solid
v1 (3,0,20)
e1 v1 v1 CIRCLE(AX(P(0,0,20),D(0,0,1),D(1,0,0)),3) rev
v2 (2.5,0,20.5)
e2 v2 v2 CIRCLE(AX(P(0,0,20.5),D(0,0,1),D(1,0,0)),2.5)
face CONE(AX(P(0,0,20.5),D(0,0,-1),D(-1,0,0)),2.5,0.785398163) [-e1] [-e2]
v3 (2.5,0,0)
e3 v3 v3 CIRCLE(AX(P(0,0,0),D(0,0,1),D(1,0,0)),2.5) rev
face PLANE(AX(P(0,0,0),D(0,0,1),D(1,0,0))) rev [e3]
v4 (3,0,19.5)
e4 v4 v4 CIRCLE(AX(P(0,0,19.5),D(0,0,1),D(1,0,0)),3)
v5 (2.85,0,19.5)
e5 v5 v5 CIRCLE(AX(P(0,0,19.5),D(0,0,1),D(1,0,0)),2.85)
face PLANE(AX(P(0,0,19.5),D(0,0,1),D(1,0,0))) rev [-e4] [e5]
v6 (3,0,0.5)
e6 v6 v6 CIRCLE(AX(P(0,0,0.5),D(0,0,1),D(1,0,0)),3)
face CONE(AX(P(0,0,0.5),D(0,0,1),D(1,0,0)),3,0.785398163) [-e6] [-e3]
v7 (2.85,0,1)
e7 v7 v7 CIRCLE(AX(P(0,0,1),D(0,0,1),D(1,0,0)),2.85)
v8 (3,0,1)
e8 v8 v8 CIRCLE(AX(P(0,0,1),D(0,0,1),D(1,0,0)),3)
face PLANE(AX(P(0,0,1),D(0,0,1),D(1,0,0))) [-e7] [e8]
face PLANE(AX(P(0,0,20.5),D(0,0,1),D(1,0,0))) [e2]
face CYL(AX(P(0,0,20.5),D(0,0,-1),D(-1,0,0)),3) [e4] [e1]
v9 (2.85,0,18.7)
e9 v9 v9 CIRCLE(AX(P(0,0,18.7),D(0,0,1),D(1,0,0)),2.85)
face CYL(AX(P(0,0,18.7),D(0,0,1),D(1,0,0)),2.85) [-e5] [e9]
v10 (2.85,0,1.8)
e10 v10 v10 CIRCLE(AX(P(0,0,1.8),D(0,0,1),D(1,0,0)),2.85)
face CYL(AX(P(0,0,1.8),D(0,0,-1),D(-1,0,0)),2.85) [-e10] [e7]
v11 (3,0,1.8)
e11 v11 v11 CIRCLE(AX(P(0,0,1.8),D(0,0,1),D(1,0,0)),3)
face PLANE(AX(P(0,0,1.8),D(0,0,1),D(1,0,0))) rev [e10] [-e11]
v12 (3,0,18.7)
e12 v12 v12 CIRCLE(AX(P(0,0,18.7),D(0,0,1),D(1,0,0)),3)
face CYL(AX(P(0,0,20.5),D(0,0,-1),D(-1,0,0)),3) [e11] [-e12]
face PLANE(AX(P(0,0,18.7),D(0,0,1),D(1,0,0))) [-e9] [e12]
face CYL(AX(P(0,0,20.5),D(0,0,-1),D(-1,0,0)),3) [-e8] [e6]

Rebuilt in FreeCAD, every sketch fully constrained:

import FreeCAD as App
import Part
import Sketcher

V = App.Vector


def edges_at(feature, points):
    """Names of the edges that pass closest to the given points."""
    edges = feature.Shape.Edges
    near = lambda p: min(range(len(edges)), key=lambda i: edges[i].distToShape(Part.Vertex(*p))[0])
    return sorted({f"Edge{near(p) + 1}" for p in points})

doc = App.newDocument("Part")
body = doc.addObject("PartDesign::Body", "Body")

sketch1 = doc.addObject("Sketcher::SketchObject", "Sketch")
body.addObject(sketch1)
sketch1.AttachmentSupport = (doc.XY_Plane, [""])
sketch1.MapMode = "FlatFace"
sketch1.addGeometry(Part.Circle(V(0, 0, 0), V(0, 0, 1), 3), False)
sketch1.addConstraint(Sketcher.Constraint("Coincident", 0, 3, -1, 1))
sketch1.addConstraint(Sketcher.Constraint("Diameter", 0, 6.0))
pad1 = doc.addObject("PartDesign::Pad", "Pad")
body.addObject(pad1)
pad1.Profile = sketch1
pad1.Length = 20.5

sketch2 = doc.addObject("Sketcher::SketchObject", "Sketch001")
body.addObject(sketch2)
sketch2.AttachmentSupport = (doc.XY_Plane, [""])
sketch2.MapMode = "FlatFace"
sketch2.AttachmentOffset = App.Placement(V(0, 0, 18.7), App.Rotation())
sketch2.addGeometry(Part.Circle(V(0, 0, 0), V(0, 0, 1), 3), False)
sketch2.addGeometry(Part.Circle(V(0, 0, 0), V(0, 0, 1), 2.85), False)
sketch2.addConstraint(Sketcher.Constraint("Coincident", 0, 3, -1, 1))
sketch2.addConstraint(Sketcher.Constraint("Coincident", 1, 3, -1, 1))
sketch2.addConstraint(Sketcher.Constraint("Diameter", 0, 6.0))
sketch2.addConstraint(Sketcher.Constraint("Diameter", 1, 5.7))
pocket1 = doc.addObject("PartDesign::Pocket", "Pocket")
body.addObject(pocket1)
pocket1.Profile = sketch2
pocket1.Length = 0.8
pocket1.Reversed = True

sketch3 = doc.addObject("Sketcher::SketchObject", "Sketch002")
body.addObject(sketch3)
sketch3.AttachmentSupport = (doc.XY_Plane, [""])
sketch3.MapMode = "FlatFace"
sketch3.AttachmentOffset = App.Placement(V(0, 0, 1), App.Rotation())
sketch3.addGeometry(Part.Circle(V(0, 0, 0), V(0, 0, 1), 3), False)
sketch3.addGeometry(Part.Circle(V(0, 0, 0), V(0, 0, 1), 2.85), False)
sketch3.addConstraint(Sketcher.Constraint("Coincident", 0, 3, -1, 1))
sketch3.addConstraint(Sketcher.Constraint("Coincident", 1, 3, -1, 1))
sketch3.addConstraint(Sketcher.Constraint("Diameter", 0, 6.0))
sketch3.addConstraint(Sketcher.Constraint("Diameter", 1, 5.7))
pocket2 = doc.addObject("PartDesign::Pocket", "Pocket001")
body.addObject(pocket2)
pocket2.Profile = sketch3
pocket2.Length = 0.8
pocket2.Reversed = True
doc.recompute()

chamfer = doc.addObject("PartDesign::Chamfer", "Chamfer")
body.addObject(chamfer)
chamfer.Base = (pocket2, edges_at(pocket2, [(-3, 0, 0), (-3, 0, 20.5)]))
chamfer.Size = 0.5

doc.recompute()
